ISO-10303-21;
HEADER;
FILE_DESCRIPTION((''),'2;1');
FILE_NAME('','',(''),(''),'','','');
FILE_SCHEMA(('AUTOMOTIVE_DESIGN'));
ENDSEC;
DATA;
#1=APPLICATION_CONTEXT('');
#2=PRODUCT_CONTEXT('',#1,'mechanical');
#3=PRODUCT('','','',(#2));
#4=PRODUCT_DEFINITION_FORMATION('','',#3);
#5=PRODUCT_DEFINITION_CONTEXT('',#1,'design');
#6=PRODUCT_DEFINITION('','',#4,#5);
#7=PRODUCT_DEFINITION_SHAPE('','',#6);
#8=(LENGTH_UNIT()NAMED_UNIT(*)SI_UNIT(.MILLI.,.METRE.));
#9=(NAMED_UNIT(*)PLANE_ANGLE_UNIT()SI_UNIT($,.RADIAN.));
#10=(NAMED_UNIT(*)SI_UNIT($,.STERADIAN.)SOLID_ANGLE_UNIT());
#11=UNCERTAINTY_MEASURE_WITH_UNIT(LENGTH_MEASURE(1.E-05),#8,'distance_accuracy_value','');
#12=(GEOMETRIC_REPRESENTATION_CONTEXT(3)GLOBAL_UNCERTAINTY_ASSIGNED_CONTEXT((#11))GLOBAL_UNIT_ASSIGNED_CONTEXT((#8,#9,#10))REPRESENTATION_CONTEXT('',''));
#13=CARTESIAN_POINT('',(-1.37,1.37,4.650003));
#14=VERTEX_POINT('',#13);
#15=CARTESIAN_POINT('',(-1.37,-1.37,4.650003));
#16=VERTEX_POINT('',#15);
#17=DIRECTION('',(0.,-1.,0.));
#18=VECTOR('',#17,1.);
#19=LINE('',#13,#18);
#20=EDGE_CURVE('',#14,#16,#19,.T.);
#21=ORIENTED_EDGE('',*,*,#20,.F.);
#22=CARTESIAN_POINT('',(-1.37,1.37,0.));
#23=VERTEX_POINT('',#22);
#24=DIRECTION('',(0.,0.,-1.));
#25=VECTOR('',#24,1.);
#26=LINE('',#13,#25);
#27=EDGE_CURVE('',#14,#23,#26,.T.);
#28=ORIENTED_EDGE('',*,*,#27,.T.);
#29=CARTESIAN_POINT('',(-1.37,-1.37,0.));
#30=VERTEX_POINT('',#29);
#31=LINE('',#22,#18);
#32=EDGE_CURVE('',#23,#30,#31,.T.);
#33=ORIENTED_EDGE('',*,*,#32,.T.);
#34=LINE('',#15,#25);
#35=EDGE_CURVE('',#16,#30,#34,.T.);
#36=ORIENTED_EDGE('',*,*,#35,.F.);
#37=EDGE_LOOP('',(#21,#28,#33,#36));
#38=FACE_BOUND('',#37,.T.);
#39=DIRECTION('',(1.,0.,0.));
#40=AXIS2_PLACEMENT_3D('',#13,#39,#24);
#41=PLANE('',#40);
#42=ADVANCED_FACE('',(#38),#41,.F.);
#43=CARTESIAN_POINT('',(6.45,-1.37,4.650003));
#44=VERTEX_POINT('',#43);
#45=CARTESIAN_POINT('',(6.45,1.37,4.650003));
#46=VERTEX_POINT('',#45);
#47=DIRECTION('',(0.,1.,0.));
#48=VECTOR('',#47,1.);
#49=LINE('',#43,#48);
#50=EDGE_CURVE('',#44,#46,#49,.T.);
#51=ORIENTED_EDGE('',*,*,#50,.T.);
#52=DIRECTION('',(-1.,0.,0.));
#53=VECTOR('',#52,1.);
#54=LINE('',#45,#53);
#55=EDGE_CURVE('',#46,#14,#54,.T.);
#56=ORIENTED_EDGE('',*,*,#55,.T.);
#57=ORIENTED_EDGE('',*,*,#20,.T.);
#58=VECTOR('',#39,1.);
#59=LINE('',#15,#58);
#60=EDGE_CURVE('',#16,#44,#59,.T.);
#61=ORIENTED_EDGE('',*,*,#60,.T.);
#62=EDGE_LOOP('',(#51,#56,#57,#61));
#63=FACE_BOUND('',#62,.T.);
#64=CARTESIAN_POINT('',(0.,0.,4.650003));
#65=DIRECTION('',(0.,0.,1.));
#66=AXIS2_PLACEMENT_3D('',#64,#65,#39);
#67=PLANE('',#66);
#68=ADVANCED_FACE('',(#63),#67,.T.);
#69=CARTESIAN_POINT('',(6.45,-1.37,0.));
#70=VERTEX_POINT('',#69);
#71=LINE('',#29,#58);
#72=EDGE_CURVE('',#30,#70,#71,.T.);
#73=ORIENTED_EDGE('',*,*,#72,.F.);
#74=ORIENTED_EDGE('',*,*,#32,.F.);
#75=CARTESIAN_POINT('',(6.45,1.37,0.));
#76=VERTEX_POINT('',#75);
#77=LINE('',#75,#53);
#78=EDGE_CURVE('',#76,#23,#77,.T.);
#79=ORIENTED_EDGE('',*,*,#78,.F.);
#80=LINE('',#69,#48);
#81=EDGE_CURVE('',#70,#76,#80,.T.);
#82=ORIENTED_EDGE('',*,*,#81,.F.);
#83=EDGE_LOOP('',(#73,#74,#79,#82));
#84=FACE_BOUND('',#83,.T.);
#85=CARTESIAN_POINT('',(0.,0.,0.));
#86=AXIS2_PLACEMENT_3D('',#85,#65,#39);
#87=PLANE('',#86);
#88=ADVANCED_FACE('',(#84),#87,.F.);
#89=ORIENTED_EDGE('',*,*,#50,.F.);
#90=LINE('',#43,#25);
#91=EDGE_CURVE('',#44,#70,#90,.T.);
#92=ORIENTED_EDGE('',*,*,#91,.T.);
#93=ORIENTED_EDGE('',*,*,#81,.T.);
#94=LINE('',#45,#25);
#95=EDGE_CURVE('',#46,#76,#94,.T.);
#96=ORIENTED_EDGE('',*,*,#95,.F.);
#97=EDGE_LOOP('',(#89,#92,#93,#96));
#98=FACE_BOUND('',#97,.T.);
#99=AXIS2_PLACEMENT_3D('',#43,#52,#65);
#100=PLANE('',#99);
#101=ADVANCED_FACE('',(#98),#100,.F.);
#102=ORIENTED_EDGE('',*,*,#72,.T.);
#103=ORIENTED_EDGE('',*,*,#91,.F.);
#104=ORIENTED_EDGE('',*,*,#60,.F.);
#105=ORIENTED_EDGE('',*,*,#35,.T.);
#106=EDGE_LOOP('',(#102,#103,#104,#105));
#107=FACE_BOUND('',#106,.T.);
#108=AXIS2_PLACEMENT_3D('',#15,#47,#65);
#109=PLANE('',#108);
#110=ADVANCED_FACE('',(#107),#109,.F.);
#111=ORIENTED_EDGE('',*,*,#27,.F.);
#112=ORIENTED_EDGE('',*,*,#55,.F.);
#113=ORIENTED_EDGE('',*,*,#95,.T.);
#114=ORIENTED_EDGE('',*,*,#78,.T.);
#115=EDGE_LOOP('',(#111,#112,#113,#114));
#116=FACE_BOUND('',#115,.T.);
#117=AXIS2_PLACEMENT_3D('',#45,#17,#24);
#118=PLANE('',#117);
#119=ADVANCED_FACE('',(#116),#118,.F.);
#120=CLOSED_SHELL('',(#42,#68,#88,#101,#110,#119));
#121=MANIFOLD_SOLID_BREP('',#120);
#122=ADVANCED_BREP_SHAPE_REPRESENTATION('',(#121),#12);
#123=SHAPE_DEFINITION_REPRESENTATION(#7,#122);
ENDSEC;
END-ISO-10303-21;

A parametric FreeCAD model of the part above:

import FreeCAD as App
import Part
import Sketcher


def add_polygon(sketch, points):
    """Adds a closed chain of lines whose ends are joined by coincident constraints."""
    first, n = sketch.GeometryCount, len(points)
    for a, b in zip(points, points[1:] + points[:1]):
        sketch.addGeometry(Part.LineSegment(App.Vector(*a, 0), App.Vector(*b, 0)), False)
    for i in range(n):
        sketch.addConstraint(Sketcher.Constraint("Coincident", first + i, 2, first + (i + 1) % n, 1))

doc = App.newDocument("Part")
body = doc.addObject("PartDesign::Body", "Body")

sketch1 = doc.addObject("Sketcher::SketchObject", "Sketch")
body.addObject(sketch1)
sketch1.AttachmentSupport = (doc.XY_Plane, [""])
sketch1.MapMode = "FlatFace"
add_polygon(sketch1, [(-1.4, 1.4), (-1.4, -1.4), (6.4, -1.4), (6.4, 1.4)])
sketch1.addConstraint([
    Sketcher.Constraint("Vertical", 0),
    Sketcher.Constraint("Horizontal", 1),
    Sketcher.Constraint("Vertical", 2),
    Sketcher.Constraint("Horizontal", 3),
    Sketcher.Constraint("DistanceX", 1, 1, 1, 2, 7.82),
    Sketcher.Constraint("DistanceY", 0, 2, 0, 1, 2.74),
    Sketcher.Constraint("DistanceX", 0, 2, -1, 1, 1.37),
    Sketcher.Constraint("DistanceY", 0, 2, -1, 1, 1.37),
])
pad1 = doc.addObject("PartDesign::Pad", "Pad")
body.addObject(pad1)
pad1.Profile = sketch1
pad1.Length = 4.650003

doc.recompute()
